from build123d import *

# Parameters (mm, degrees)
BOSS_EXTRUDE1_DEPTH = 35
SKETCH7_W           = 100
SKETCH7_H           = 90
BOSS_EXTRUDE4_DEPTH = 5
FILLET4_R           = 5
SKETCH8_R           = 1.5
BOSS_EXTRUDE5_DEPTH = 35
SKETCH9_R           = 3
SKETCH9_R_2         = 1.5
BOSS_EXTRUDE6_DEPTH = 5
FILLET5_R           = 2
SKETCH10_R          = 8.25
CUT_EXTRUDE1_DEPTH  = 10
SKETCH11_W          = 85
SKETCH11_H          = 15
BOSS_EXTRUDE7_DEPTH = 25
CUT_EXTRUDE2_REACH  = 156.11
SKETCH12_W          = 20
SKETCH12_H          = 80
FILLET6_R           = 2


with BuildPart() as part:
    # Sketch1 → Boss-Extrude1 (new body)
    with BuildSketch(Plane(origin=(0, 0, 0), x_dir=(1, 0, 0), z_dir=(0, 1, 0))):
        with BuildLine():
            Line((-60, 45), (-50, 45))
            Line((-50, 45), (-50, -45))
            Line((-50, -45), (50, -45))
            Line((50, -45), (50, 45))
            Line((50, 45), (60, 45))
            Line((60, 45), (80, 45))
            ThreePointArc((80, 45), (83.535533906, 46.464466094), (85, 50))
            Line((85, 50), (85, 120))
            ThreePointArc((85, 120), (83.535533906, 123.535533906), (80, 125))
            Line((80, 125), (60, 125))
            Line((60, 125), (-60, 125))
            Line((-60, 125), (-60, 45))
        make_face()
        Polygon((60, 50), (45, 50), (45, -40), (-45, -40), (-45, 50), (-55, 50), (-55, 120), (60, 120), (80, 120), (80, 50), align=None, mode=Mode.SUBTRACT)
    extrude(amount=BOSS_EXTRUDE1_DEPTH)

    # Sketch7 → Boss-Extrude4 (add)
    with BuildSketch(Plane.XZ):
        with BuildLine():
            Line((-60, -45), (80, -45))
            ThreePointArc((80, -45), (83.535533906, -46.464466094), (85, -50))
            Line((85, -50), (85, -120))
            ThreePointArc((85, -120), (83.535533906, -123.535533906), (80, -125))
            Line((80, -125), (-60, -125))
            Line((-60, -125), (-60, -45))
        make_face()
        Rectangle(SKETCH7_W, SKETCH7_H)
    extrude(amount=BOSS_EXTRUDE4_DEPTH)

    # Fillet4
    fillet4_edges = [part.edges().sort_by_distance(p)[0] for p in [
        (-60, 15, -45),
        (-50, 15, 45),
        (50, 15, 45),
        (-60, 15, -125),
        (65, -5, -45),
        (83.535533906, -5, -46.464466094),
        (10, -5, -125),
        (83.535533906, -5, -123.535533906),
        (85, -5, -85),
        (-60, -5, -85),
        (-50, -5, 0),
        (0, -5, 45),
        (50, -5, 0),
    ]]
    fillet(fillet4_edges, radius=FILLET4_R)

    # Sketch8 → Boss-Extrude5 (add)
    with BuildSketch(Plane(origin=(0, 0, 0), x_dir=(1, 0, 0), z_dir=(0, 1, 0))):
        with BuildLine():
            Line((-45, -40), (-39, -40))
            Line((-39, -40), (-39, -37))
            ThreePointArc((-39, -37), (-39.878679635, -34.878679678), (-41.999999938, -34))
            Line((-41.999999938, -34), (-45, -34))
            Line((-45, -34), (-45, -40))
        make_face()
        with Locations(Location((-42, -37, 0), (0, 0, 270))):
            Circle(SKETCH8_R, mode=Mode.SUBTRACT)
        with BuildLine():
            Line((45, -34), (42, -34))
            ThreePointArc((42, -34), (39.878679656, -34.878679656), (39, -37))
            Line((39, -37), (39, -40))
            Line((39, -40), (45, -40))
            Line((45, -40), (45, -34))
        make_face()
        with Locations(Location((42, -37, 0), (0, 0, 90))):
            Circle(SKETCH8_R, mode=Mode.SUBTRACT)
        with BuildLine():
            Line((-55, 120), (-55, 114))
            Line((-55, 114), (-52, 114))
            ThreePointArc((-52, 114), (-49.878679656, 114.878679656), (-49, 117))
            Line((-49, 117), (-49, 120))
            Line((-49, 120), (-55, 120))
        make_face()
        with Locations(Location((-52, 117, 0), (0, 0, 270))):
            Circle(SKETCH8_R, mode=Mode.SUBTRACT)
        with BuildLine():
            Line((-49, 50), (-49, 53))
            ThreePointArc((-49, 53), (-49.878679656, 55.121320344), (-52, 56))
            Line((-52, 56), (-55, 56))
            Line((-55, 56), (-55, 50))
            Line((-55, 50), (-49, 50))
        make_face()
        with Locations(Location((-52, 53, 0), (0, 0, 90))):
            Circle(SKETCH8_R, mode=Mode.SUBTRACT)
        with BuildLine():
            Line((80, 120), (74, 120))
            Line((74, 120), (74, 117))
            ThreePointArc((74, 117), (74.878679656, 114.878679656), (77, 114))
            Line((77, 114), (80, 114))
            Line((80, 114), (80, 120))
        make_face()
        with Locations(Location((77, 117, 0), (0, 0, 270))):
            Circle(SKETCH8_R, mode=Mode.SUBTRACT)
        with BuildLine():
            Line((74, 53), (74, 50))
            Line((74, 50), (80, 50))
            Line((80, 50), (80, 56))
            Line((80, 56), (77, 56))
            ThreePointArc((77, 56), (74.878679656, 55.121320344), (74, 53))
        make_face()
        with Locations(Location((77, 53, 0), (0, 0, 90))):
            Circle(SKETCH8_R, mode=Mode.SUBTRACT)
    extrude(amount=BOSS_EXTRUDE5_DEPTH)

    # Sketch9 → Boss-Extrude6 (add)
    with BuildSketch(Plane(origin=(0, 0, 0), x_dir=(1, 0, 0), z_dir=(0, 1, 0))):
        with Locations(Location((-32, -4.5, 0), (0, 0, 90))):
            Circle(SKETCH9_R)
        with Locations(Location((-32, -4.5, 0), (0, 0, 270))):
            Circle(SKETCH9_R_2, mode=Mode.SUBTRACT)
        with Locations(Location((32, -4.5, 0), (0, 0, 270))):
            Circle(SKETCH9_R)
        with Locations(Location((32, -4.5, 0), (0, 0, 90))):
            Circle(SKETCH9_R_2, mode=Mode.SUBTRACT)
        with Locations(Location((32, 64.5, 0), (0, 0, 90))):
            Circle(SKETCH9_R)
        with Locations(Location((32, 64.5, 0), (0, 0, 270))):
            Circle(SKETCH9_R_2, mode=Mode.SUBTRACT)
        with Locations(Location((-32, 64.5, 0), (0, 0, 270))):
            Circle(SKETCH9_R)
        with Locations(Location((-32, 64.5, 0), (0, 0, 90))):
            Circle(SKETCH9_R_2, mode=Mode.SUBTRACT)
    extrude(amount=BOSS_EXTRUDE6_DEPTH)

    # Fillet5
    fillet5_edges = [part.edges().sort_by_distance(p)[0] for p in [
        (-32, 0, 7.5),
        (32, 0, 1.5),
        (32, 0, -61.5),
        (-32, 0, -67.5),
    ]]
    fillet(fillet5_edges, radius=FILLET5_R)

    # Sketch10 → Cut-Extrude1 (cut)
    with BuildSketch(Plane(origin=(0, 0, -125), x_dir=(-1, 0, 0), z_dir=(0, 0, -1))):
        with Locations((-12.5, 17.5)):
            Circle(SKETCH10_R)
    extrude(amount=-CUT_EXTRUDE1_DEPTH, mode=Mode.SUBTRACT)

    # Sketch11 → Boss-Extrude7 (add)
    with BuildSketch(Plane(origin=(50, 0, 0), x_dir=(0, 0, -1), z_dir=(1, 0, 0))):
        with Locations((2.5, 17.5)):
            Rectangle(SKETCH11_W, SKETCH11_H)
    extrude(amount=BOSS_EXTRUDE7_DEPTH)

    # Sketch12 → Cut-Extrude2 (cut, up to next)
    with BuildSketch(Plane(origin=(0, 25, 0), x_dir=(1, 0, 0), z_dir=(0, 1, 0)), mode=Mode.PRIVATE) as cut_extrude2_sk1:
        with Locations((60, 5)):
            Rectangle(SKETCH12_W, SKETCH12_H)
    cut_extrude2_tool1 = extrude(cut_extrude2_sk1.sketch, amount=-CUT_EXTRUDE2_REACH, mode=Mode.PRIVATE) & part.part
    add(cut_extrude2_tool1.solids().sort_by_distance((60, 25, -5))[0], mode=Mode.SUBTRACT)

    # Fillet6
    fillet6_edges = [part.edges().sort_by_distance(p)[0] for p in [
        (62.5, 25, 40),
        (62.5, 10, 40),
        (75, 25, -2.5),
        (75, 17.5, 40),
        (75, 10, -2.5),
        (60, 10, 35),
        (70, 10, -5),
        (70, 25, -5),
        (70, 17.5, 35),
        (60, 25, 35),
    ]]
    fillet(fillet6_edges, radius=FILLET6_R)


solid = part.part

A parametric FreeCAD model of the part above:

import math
import FreeCAD as App
import Part
import Sketcher
from FreeCAD import Vector


def edges_at(feature, points):
    """Names of the edges that pass closest to the given points."""
    edges = feature.Shape.Edges
    near = lambda p: min(range(len(edges)), key=lambda i: edges[i].distToShape(Part.Vertex(*p))[0])
    return sorted({f"Edge{near(p) + 1}" for p in points})

doc = App.newDocument("Part")
body = doc.addObject("PartDesign::Body", "Body")

# Sketch on XZ plane
sketch1 = body.newObject("Sketcher::SketchObject", "Sketch")
sketch1.AttachmentSupport = (doc.getObject("XZ_Plane"), [""])
sketch1.MapMode = "FlatFace"
sketch1.addGeometry([
    Part.LineSegment(Vector(-60, -45, 0), Vector(-50, -45, 0)),  # 0
    Part.LineSegment(Vector(-50, -45, 0), Vector(-50, 45, 0)),  # 1
    Part.LineSegment(Vector(-50, 45, 0), Vector(50, 45, 0)),  # 2
    Part.LineSegment(Vector(50, 45, 0), Vector(50, -45, 0)),  # 3
    Part.LineSegment(Vector(50, -45, 0), Vector(80, -45, 0)),  # 4
    Part.ArcOfCircle(Part.Circle(Vector(80, -50, 0), Vector(0, 0, 1), 5), math.radians(0), math.radians(90)),  # 5
    Part.LineSegment(Vector(85, -50, 0), Vector(85, -120, 0)),  # 6
    Part.ArcOfCircle(Part.Circle(Vector(80, -120, 0), Vector(0, 0, 1), 5), math.radians(-90), math.radians(0)),  # 7
    Part.LineSegment(Vector(80, -125, 0), Vector(-60, -125, 0)),  # 8
    Part.LineSegment(Vector(-60, -125, 0), Vector(-60, -45, 0)),  # 9
    Part.LineSegment(Vector(80, -50, 0), Vector(45, -50, 0)),  # 10
    Part.LineSegment(Vector(45, -50, 0), Vector(45, 40, 0)),  # 11
    Part.LineSegment(Vector(45, 40, 0), Vector(-45, 40, 0)),  # 12
    Part.LineSegment(Vector(-45, 40, 0), Vector(-45, -50, 0)),  # 13
    Part.LineSegment(Vector(-45, -50, 0), Vector(-55, -50, 0)),  # 14
    Part.LineSegment(Vector(-55, -50, 0), Vector(-55, -120, 0)),  # 15
    Part.LineSegment(Vector(-55, -120, 0), Vector(80, -120, 0)),  # 16
    Part.LineSegment(Vector(80, -120, 0), Vector(80, -50, 0)),  # 17
], False)
sketch1.addConstraint([
    Sketcher.Constraint("Coincident", 0, 2, 1, 1),
    Sketcher.Constraint("Coincident", 1, 2, 2, 1),
    Sketcher.Constraint("Coincident", 2, 2, 3, 1),
    Sketcher.Constraint("Coincident", 3, 2, 4, 1),
    Sketcher.Constraint("Tangent", 4, 2, 5, 2),
    Sketcher.Constraint("Tangent", 5, 1, 6, 1),
    Sketcher.Constraint("Tangent", 6, 2, 7, 2),
    Sketcher.Constraint("Tangent", 7, 1, 8, 1),
    Sketcher.Constraint("Coincident", 8, 2, 9, 1),
    Sketcher.Constraint("Coincident", 9, 2, 0, 1),
    Sketcher.Constraint("Coincident", 10, 2, 11, 1),
    Sketcher.Constraint("Coincident", 11, 2, 12, 1),
    Sketcher.Constraint("Coincident", 12, 2, 13, 1),
    Sketcher.Constraint("Coincident", 13, 2, 14, 1),
    Sketcher.Constraint("Coincident", 14, 2, 15, 1),
    Sketcher.Constraint("Coincident", 15, 2, 16, 1),
    Sketcher.Constraint("Coincident", 16, 2, 17, 1),
    Sketcher.Constraint("Coincident", 17, 2, 10, 1),
    Sketcher.Constraint("Horizontal", 0),
    Sketcher.Constraint("Vertical", 1),
    Sketcher.Constraint("Horizontal", 2),
    Sketcher.Constraint("Vertical", 3),
    Sketcher.Constraint("Horizontal", 4),
    Sketcher.Constraint("Vertical", 6),
    Sketcher.Constraint("Horizontal", 8),
    Sketcher.Constraint("Vertical", 9),
    Sketcher.Constraint("Horizontal", 10),
    Sketcher.Constraint("Vertical", 11),
    Sketcher.Constraint("Horizontal", 12),
    Sketcher.Constraint("Vertical", 13),
    Sketcher.Constraint("Horizontal", 14),
    Sketcher.Constraint("Vertical", 15),
    Sketcher.Constraint("Horizontal", 16),
    Sketcher.Constraint("Vertical", 17),
    Sketcher.Constraint("Coincident", 16, 2, 7, 3),
    Sketcher.Constraint("Coincident", 17, 2, 5, 3),
    Sketcher.Constraint("Symmetric", 0, 2, 2, 2, -1, 1),
    Sketcher.Constraint("Symmetric", 10, 2, 13, 2, -2),
    Sketcher.Constraint("Horizontal", 0, 2, 3, 2),
    Sketcher.Constraint("Equal", 0, 14),
    Sketcher.Constraint("Equal", 12, 1),
    Sketcher.Constraint("Equal", 3, 11),
    Sketcher.Constraint("Radius", 5, 5.0),
    Sketcher.Constraint("DistanceX", 0, 1, 0, 2, 10.0),
    Sketcher.Constraint("DistanceX", 2, 1, 2, 2, 100.0),
    Sketcher.Constraint("DistanceX", 4, 1, 4, 2, 30.0),
    Sketcher.Constraint("DistanceX", 10, 2, 10, 1, 35.0),
    Sketcher.Constraint("DistanceY", 6, 2, 6, 1, 70.0),
])
pad1 = body.newObject("PartDesign::Pad", "Pad")
pad1.Profile = sketch1
pad1.Length = 35
pad1.Reversed = True

# Sketch on XZ plane
sketch2 = body.newObject("Sketcher::SketchObject", "Sketch001")
sketch2.AttachmentSupport = (doc.getObject("XZ_Plane"), [""])
sketch2.MapMode = "FlatFace"
sketch2.addGeometry([
    Part.LineSegment(Vector(-50, -45, 0), Vector(-60, -45, 0)),  # 0
    Part.LineSegment(Vector(-60, -45, 0), Vector(-60, -125, 0)),  # 1
    Part.LineSegment(Vector(-60, -125, 0), Vector(80, -125, 0)),  # 2
    Part.ArcOfCircle(Part.Circle(Vector(80, -120, 0), Vector(0, 0, 1), 5), math.radians(-90), math.radians(0)),  # 3
    Part.LineSegment(Vector(85, -120, 0), Vector(85, -50, 0)),  # 4
    Part.ArcOfCircle(Part.Circle(Vector(80, -50, 0), Vector(0, 0, 1), 5), math.radians(0), math.radians(90)),  # 5
    Part.LineSegment(Vector(80, -45, 0), Vector(50, -45, 0)),  # 6
    Part.LineSegment(Vector(50, -45, 0), Vector(50, 45, 0)),  # 7
    Part.LineSegment(Vector(50, 45, 0), Vector(-50, 45, 0)),  # 8
    Part.LineSegment(Vector(-50, 45, 0), Vector(-50, -45, 0)),  # 9
], False)
sketch2.addConstraint([
    Sketcher.Constraint("Coincident", 0, 2, 1, 1),
    Sketcher.Constraint("Coincident", 1, 2, 2, 1),
    Sketcher.Constraint("Tangent", 2, 2, 3, 1),
    Sketcher.Constraint("Tangent", 3, 2, 4, 1),
    Sketcher.Constraint("Tangent", 4, 2, 5, 1),
    Sketcher.Constraint("Tangent", 5, 2, 6, 1),
    Sketcher.Constraint("Coincident", 6, 2, 7, 1),
    Sketcher.Constraint("Coincident", 7, 2, 8, 1),
    Sketcher.Constraint("Coincident", 8, 2, 9, 1),
    Sketcher.Constraint("Coincident", 9, 2, 0, 1),
    Sketcher.Constraint("Horizontal", 0),
    Sketcher.Constraint("Vertical", 1),
    Sketcher.Constraint("Horizontal", 2),
    Sketcher.Constraint("Vertical", 4),
    Sketcher.Constraint("Horizontal", 6),
    Sketcher.Constraint("Vertical", 7),
    Sketcher.Constraint("Horizontal", 8),
    Sketcher.Constraint("Vertical", 9),
    Sketcher.Constraint("Equal", 3, 5),
    Sketcher.Constraint("Symmetric", 6, 2, 8, 2, -1, 1),
    Sketcher.Constraint("Horizontal", 0, 2, 5, 2),
    Sketcher.Constraint("Radius", 3, 5.0),
    Sketcher.Constraint("DistanceX", 0, 2, 0, 1, 10.0),
    Sketcher.Constraint("DistanceX", 2, 1, 2, 2, 140.0),
    Sketcher.Constraint("DistanceX", 6, 2, 6, 1, 30.0),
    Sketcher.Constraint("DistanceY", 1, 2, 1, 1, 80.0),
    Sketcher.Constraint("DistanceY", 7, 1, 7, 2, 90.0),
])
pad2 = body.newObject("PartDesign::Pad", "Pad001")
pad2.Profile = sketch2
pad2.Length = 5
doc.recompute()

fillet = body.newObject("PartDesign::Fillet", "Fillet")
fillet.Base = (pad2, edges_at(pad2, [
    (-60, 15, -45),
    (-50, 15, 45),
    (50, 15, 45),
    (-60, 15, -125),
    (65, -5, -45),
    (83.536, -5, -46.464),
    (10, -5, -125),
    (83.536, -5, -123.536),
    (85, -5, -85),
    (-60, -5, -85),
    (-50, -5, 0),
    (0, -5, 45),
    (50, -5, 0),
]))
fillet.Radius = 5

# Sketch on XZ plane
sketch3 = body.newObject("Sketcher::SketchObject", "Sketch002")
sketch3.AttachmentSupport = (doc.getObject("XZ_Plane"), [""])
sketch3.MapMode = "FlatFace"
sketch3.addGeometry([
    Part.LineSegment(Vector(-45, 40, 0), Vector(-39, 40, 0)),  # 0
    Part.LineSegment(Vector(-39, 40, 0), Vector(-39, 37, 0)),  # 1
    Part.ArcOfCircle(Part.Circle(Vector(-42, 37, 0), Vector(0, 0, 1), 3), math.radians(-89.999999), math.radians(0)),  # 2
    Part.LineSegment(Vector(-42, 34, 0), Vector(-45, 34, 0)),  # 3
    Part.LineSegment(Vector(-45, 34, 0), Vector(-45, 40, 0)),  # 4
    Part.Circle(Vector(-42, 37, 0), Vector(0, 0, 1), 1.5),  # 5
    Part.LineSegment(Vector(45, 34, 0), Vector(42, 34, 0)),  # 6
    Part.ArcOfCircle(Part.Circle(Vector(42, 37, 0), Vector(0, 0, 1), 3), math.radians(180), math.radians(270)),  # 7
    Part.LineSegment(Vector(39, 37, 0), Vector(39, 40, 0)),  # 8
    Part.LineSegment(Vector(39, 40, 0), Vector(45, 40, 0)),  # 9
    Part.LineSegment(Vector(45, 40, 0), Vector(45, 34, 0)),  # 10
    Part.Circle(Vector(42, 37, 0), Vector(0, 0, 1), 1.5),  # 11
    Part.LineSegment(Vector(-55, -120, 0), Vector(-55, -114, 0)),  # 12
    Part.LineSegment(Vector(-55, -114, 0), Vector(-52, -114, 0)),  # 13
    Part.ArcOfCircle(Part.Circle(Vector(-52, -117, 0), Vector(0, 0, 1), 3), math.radians(0), math.radians(90)),  # 14
    Part.LineSegment(Vector(-49, -117, 0), Vector(-49, -120, 0)),  # 15
    Part.LineSegment(Vector(-49, -120, 0), Vector(-55, -120, 0)),  # 16
    Part.Circle(Vector(-52, -117, 0), Vector(0, 0, 1), 1.5),  # 17
    Part.LineSegment(Vector(-49, -50, 0), Vector(-49, -53, 0)),  # 18
    Part.ArcOfCircle(Part.Circle(Vector(-52, -53, 0), Vector(0, 0, 1), 3), math.radians(-90), math.radians(0)),  # 19
    Part.LineSegment(Vector(-52, -56, 0), Vector(-55, -56, 0)),  # 20
    Part.LineSegment(Vector(-55, -56, 0), Vector(-55, -50, 0)),  # 21
    Part.LineSegment(Vector(-55, -50, 0), Vector(-49, -50, 0)),  # 22
    Part.Circle(Vector(-52, -53, 0), Vector(0, 0, 1), 1.5),  # 23
    Part.LineSegment(Vector(80, -120, 0), Vector(74, -120, 0)),  # 24
    Part.LineSegment(Vector(74, -120, 0), Vector(74, -117, 0)),  # 25
    Part.ArcOfCircle(Part.Circle(Vector(77, -117, 0), Vector(0, 0, 1), 3), math.radians(90), math.radians(180)),  # 26
    Part.LineSegment(Vector(77, -114, 0), Vector(80, -114, 0)),  # 27
    Part.LineSegment(Vector(80, -114, 0), Vector(80, -120, 0)),  # 28
    Part.Circle(Vector(77, -117, 0), Vector(0, 0, 1), 1.5),  # 29
    Part.LineSegment(Vector(74, -53, 0), Vector(74, -50, 0)),  # 30
    Part.LineSegment(Vector(74, -50, 0), Vector(80, -50, 0)),  # 31
    Part.LineSegment(Vector(80, -50, 0), Vector(80, -56, 0)),  # 32
    Part.LineSegment(Vector(80, -56, 0), Vector(77, -56, 0)),  # 33
    Part.ArcOfCircle(Part.Circle(Vector(77, -53, 0), Vector(0, 0, 1), 3), math.radians(180), math.radians(270)),  # 34
    Part.Circle(Vector(77, -53, 0), Vector(0, 0, 1), 1.5),  # 35
], False)
sketch3.addConstraint([
    Sketcher.Constraint("Coincident", 0, 2, 1, 1),
    Sketcher.Constraint("Tangent", 1, 2, 2, 2),
    Sketcher.Constraint("Tangent", 2, 1, 3, 1),
    Sketcher.Constraint("Coincident", 3, 2, 4, 1),
    Sketcher.Constraint("Coincident", 4, 2, 0, 1),
    Sketcher.Constraint("Tangent", 6, 2, 7, 2),
    Sketcher.Constraint("Tangent", 7, 1, 8, 1),
    Sketcher.Constraint("Coincident", 8, 2, 9, 1),
    Sketcher.Constraint("Coincident", 9, 2, 10, 1),
    Sketcher.Constraint("Coincident", 10, 2, 6, 1),
    Sketcher.Constraint("Coincident", 12, 2, 13, 1),
    Sketcher.Constraint("Tangent", 13, 2, 14, 2),
    Sketcher.Constraint("Tangent", 14, 1, 15, 1),
    Sketcher.Constraint("Coincident", 15, 2, 16, 1),
    Sketcher.Constraint("Coincident", 16, 2, 12, 1),
    Sketcher.Constraint("Tangent", 18, 2, 19, 2),
    Sketcher.Constraint("Tangent", 19, 1, 20, 1),
    Sketcher.Constraint("Coincident", 20, 2, 21, 1),
    Sketcher.Constraint("Coincident", 21, 2, 22, 1),
    Sketcher.Constraint("Coincident", 22, 2, 18, 1),
    Sketcher.Constraint("Coincident", 24, 2, 25, 1),
    Sketcher.Constraint("Tangent", 25, 2, 26, 2),
    Sketcher.Constraint("Tangent", 26, 1, 27, 1),
    Sketcher.Constraint("Coincident", 27, 2, 28, 1),
    Sketcher.Constraint("Coincident", 28, 2, 24, 1),
    Sketcher.Constraint("Coincident", 30, 2, 31, 1),
    Sketcher.Constraint("Coincident", 31, 2, 32, 1),
    Sketcher.Constraint("Coincident", 32, 2, 33, 1),
    Sketcher.Constraint("Tangent", 33, 2, 34, 2),
    Sketcher.Constraint("Tangent", 34, 1, 30, 1),
    Sketcher.Constraint("Horizontal", 0),
    Sketcher.Constraint("Vertical", 1),
    Sketcher.Constraint("Horizontal", 3),
    Sketcher.Constraint("Vertical", 4),
    Sketcher.Constraint("Horizontal", 6),
    Sketcher.Constraint("Vertical", 8),
    Sketcher.Constraint("Horizontal", 9),
    Sketcher.Constraint("Vertical", 10),
    Sketcher.Constraint("Vertical", 12),
    Sketcher.Constraint("Horizontal", 13),
    Sketcher.Constraint("Vertical", 15),
    Sketcher.Constraint("Horizontal", 16),
    Sketcher.Constraint("Vertical", 18),
    Sketcher.Constraint("Horizontal", 20),
    Sketcher.Constraint("Vertical", 21),
    Sketcher.Constraint("Horizontal", 22),
    Sketcher.Constraint("Horizontal", 24),
    Sketcher.Constraint("Vertical", 25),
    Sketcher.Constraint("Horizontal", 27),
    Sketcher.Constraint("Vertical", 28),
    Sketcher.Constraint("Vertical", 30),
    Sketcher.Constraint("Horizontal", 31),
    Sketcher.Constraint("Vertical", 32),
    Sketcher.Constraint("Horizontal", 33),
    Sketcher.Constraint("Coincident", 5, 3, 2, 3),
    Sketcher.Constraint("Coincident", 11, 3, 7, 3),
    Sketcher.Constraint("Coincident", 17, 3, 14, 3),
    Sketcher.Constraint("Coincident", 23, 3, 19, 3),
    Sketcher.Constraint("Coincident", 29, 3, 26, 3),
    Sketcher.Constraint("Coincident", 35, 3, 34, 3),
    Sketcher.Constraint("Equal", 2, 7),
    Sketcher.Constraint("Equal", 5, 11),
    Sketcher.Constraint("Equal", 7, 14),
    Sketcher.Constraint("Equal", 11, 17),
    Sketcher.Constraint("Equal", 14, 19),
    Sketcher.Constraint("Equal", 17, 23),
    Sketcher.Constraint("Equal", 19, 26),
    Sketcher.Constraint("Equal", 23, 29),
    Sketcher.Constraint("Equal", 26, 34),
    Sketcher.Constraint("Equal", 29, 35),
    Sketcher.Constraint("Symmetric", 2, 3, 7, 3, -2),
    Sketcher.Constraint("Symmetric", 4, 2, 9, 2, -2),
    Sketcher.Constraint("Horizontal", 17, 3, 26, 3),
    Sketcher.Constraint("Horizontal", 23, 3, 34, 3),
    Sketcher.Constraint("Horizontal", 16, 2, 24, 2),
    Sketcher.Constraint("Horizontal", 22, 2, 30, 2),
    Sketcher.Constraint("Vertical", 17, 3, 19, 3),
    Sketcher.Constraint("Vertical", 29, 3, 34, 3),
    Sketcher.Constraint("Vertical", 16, 2, 20, 2),
    Sketcher.Constraint("Vertical", 28, 2, 31, 2),
    Sketcher.Constraint("Equal", 6, 13),
    Sketcher.Constraint("Equal", 22, 24),
    Sketcher.Constraint("Equal", 33, 1),
    Sketcher.Constraint("Equal", 10, 12),
    Sketcher.Constraint("Equal", 15, 18),
    Sketcher.Constraint("Diameter", 5, 3.0),
    Sketcher.Constraint("Radius", 2, 3.0),
    Sketcher.Constraint("DistanceX", 0, 1, 0, 2, 6.0),
    Sketcher.Constraint("DistanceX", 2, 3, -1, 1, 42.0),
    Sketcher.Constraint("DistanceY", -1, 1, 2, 3, 37.0),
    Sketcher.Constraint("DistanceX", 14, 3, -1, 1, 52.0),
    Sketcher.Constraint("DistanceY", 14, 3, -1, 1, 117.0),
    Sketcher.Constraint("DistanceY", 19, 3, -1, 1, 53.0),
    Sketcher.Constraint("DistanceX", -1, 1, 26, 3, 77.0),
])
pad3 = body.newObject("PartDesign::Pad", "Pad002")
pad3.Profile = sketch3
pad3.Length = 35
pad3.Reversed = True

# Sketch on XZ plane
sketch4 = body.newObject("Sketcher::SketchObject", "Sketch003")
sketch4.AttachmentSupport = (doc.getObject("XZ_Plane"), [""])
sketch4.MapMode = "FlatFace"
sketch4.addGeometry([
    Part.Circle(Vector(-32, 4.5, 0), Vector(0, 0, 1), 3),  # 0
    Part.Circle(Vector(-32, 4.5, 0), Vector(0, 0, 1), 1.5),  # 1
    Part.Circle(Vector(32, 4.5, 0), Vector(0, 0, 1), 3),  # 2
    Part.Circle(Vector(32, 4.5, 0), Vector(0, 0, 1), 1.5),  # 3
    Part.Circle(Vector(32, -64.5, 0), Vector(0, 0, 1), 3),  # 4
    Part.Circle(Vector(32, -64.5, 0), Vector(0, 0, 1), 1.5),  # 5
    Part.Circle(Vector(-32, -64.5, 0), Vector(0, 0, 1), 3),  # 6
    Part.Circle(Vector(-32, -64.5, 0), Vector(0, 0, 1), 1.5),  # 7
], False)
sketch4.addConstraint([
    Sketcher.Constraint("Coincident", 1, 3, 0, 3),
    Sketcher.Constraint("Coincident", 3, 3, 2, 3),
    Sketcher.Constraint("Coincident", 5, 3, 4, 3),
    Sketcher.Constraint("Coincident", 7, 3, 6, 3),
    Sketcher.Constraint("Equal", 0, 2),
    Sketcher.Constraint("Equal", 1, 3),
    Sketcher.Constraint("Equal", 2, 4),
    Sketcher.Constraint("Equal", 3, 5),
    Sketcher.Constraint("Equal", 4, 6),
    Sketcher.Constraint("Equal", 5, 7),
    Sketcher.Constraint("Symmetric", 0, 3, 2, 3, -2),
    Sketcher.Constraint("Symmetric", 4, 3, 6, 3, -2),
    Sketcher.Constraint("Vertical", 3, 3, 4, 3),
    Sketcher.Constraint("Diameter", 0, 6.0),
    Sketcher.Constraint("Diameter", 1, 3.0),
    Sketcher.Constraint("DistanceX", 0, 3, -1, 1, 32.0),
    Sketcher.Constraint("DistanceY", 4, 3, 2, 3, 69.0),
    Sketcher.Constraint("DistanceY", -1, 1, 0, 3, 4.5),
])
pad4 = body.newObject("PartDesign::Pad", "Pad003")
pad4.Profile = sketch4
pad4.Length = 5
pad4.Reversed = True
doc.recompute()

fillet2 = body.newObject("PartDesign::Fillet", "Fillet001")
fillet2.Base = (pad4, edges_at(pad4, [
    (-32, 0, 7.5),
    (32, 0, 1.5),
    (32, 0, -61.5),
    (-32, 0, -67.5),
]))
fillet2.Radius = 2

# Sketch on XY plane
sketch5 = body.newObject("Sketcher::SketchObject", "Sketch004")
sketch5.AttachmentSupport = (doc.getObject("XY_Plane"), [""])
sketch5.MapMode = "FlatFace"
sketch5.AttachmentOffset = App.Placement(Vector(0, 0, -125), App.Rotation())
sketch5.addGeometry(Part.Circle(Vector(12.5, 17.5, 0), Vector(0, 0, 1), 8.25), False)
sketch5.addConstraint([
    Sketcher.Constraint("Diameter", 0, 16.5),
    Sketcher.Constraint("DistanceX", -1, 1, 0, 3, 12.5),
    Sketcher.Constraint("DistanceY", -1, 1, 0, 3, 17.5),
])
pocket1 = body.newObject("PartDesign::Pocket", "Pocket")
pocket1.Profile = sketch5
pocket1.Length = 10
pocket1.Reversed = True

# Sketch on YZ plane
sketch6 = body.newObject("Sketcher::SketchObject", "Sketch005")
sketch6.AttachmentSupport = (doc.getObject("YZ_Plane"), [""])
sketch6.MapMode = "FlatFace"
sketch6.AttachmentOffset = App.Placement(Vector(0, 0, 50), App.Rotation())
sketch6.addGeometry([
    Part.LineSegment(Vector(25, 40, 0), Vector(10, 40, 0)),
    Part.LineSegment(Vector(10, 40, 0), Vector(10, -45, 0)),
    Part.LineSegment(Vector(10, -45, 0), Vector(25, -45, 0)),
    Part.LineSegment(Vector(25, -45, 0), Vector(25, 40, 0)),
], False)
sketch6.addConstraint([
    Sketcher.Constraint("Coincident", 0, 2, 1, 1),
    Sketcher.Constraint("Coincident", 1, 2, 2, 1),
    Sketcher.Constraint("Coincident", 2, 2, 3, 1),
    Sketcher.Constraint("Coincident", 3, 2, 0, 1),
    Sketcher.Constraint("Horizontal", 0),
    Sketcher.Constraint("Vertical", 1),
    Sketcher.Constraint("Horizontal", 2),
    Sketcher.Constraint("Vertical", 3),
    Sketcher.Constraint("DistanceX", 0, 2, 0, 1, 15.0),
    Sketcher.Constraint("DistanceY", 1, 2, 1, 1, 85.0),
    Sketcher.Constraint("DistanceX", -1, 1, 0, 2, 10.0),
    Sketcher.Constraint("DistanceY", -1, 1, 0, 2, 40.0),
])
pad5 = body.newObject("PartDesign::Pad", "Pad004")
pad5.Profile = sketch6
pad5.Length = 25

# Sketch on XZ plane
sketch7 = body.newObject("Sketcher::SketchObject", "Sketch006")
sketch7.AttachmentSupport = (doc.getObject("XZ_Plane"), [""])
sketch7.MapMode = "FlatFace"
sketch7.AttachmentOffset = App.Placement(Vector(0, 0, -25), App.Rotation())
sketch7.addGeometry([
    Part.LineSegment(Vector(50, -45, 0), Vector(50, 35, 0)),
    Part.LineSegment(Vector(50, 35, 0), Vector(70, 35, 0)),
    Part.LineSegment(Vector(70, 35, 0), Vector(70, -45, 0)),
    Part.LineSegment(Vector(70, -45, 0), Vector(50, -45, 0)),
], False)
sketch7.addConstraint([
    Sketcher.Constraint("Coincident", 0, 2, 1, 1),
    Sketcher.Constraint("Coincident", 1, 2, 2, 1),
    Sketcher.Constraint("Coincident", 2, 2, 3, 1),
    Sketcher.Constraint("Coincident", 3, 2, 0, 1),
    Sketcher.Constraint("Vertical", 0),
    Sketcher.Constraint("Horizontal", 1),
    Sketcher.Constraint("Vertical", 2),
    Sketcher.Constraint("Horizontal", 3),
    Sketcher.Constraint("DistanceX", 1, 1, 1, 2, 20.0),
    Sketcher.Constraint("DistanceY", 0, 1, 0, 2, 80.0),
    Sketcher.Constraint("DistanceX", -1, 1, 0, 2, 50.0),
    Sketcher.Constraint("DistanceY", -1, 1, 0, 2, 35.0),
])
pocket2 = body.newObject("PartDesign::Pocket", "Pocket001")
pocket2.Profile = sketch7
pocket2.Type = "UpToFirst"
pocket2.Reversed = True
doc.recompute()

fillet3 = body.newObject("PartDesign::Fillet", "Fillet002")
fillet3.Base = (pocket2, edges_at(pocket2, [
    (62.5, 25, 40),
    (62.5, 10, 40),
    (75, 25, -2.5),
    (75, 17.5, 40),
    (75, 10, -2.5),
    (60, 10, 35),
    (70, 10, -5),
    (70, 25, -5),
    (70, 17.5, 35),
    (60, 25, 35),
]))
fillet3.Radius = 2

doc.recompute()
